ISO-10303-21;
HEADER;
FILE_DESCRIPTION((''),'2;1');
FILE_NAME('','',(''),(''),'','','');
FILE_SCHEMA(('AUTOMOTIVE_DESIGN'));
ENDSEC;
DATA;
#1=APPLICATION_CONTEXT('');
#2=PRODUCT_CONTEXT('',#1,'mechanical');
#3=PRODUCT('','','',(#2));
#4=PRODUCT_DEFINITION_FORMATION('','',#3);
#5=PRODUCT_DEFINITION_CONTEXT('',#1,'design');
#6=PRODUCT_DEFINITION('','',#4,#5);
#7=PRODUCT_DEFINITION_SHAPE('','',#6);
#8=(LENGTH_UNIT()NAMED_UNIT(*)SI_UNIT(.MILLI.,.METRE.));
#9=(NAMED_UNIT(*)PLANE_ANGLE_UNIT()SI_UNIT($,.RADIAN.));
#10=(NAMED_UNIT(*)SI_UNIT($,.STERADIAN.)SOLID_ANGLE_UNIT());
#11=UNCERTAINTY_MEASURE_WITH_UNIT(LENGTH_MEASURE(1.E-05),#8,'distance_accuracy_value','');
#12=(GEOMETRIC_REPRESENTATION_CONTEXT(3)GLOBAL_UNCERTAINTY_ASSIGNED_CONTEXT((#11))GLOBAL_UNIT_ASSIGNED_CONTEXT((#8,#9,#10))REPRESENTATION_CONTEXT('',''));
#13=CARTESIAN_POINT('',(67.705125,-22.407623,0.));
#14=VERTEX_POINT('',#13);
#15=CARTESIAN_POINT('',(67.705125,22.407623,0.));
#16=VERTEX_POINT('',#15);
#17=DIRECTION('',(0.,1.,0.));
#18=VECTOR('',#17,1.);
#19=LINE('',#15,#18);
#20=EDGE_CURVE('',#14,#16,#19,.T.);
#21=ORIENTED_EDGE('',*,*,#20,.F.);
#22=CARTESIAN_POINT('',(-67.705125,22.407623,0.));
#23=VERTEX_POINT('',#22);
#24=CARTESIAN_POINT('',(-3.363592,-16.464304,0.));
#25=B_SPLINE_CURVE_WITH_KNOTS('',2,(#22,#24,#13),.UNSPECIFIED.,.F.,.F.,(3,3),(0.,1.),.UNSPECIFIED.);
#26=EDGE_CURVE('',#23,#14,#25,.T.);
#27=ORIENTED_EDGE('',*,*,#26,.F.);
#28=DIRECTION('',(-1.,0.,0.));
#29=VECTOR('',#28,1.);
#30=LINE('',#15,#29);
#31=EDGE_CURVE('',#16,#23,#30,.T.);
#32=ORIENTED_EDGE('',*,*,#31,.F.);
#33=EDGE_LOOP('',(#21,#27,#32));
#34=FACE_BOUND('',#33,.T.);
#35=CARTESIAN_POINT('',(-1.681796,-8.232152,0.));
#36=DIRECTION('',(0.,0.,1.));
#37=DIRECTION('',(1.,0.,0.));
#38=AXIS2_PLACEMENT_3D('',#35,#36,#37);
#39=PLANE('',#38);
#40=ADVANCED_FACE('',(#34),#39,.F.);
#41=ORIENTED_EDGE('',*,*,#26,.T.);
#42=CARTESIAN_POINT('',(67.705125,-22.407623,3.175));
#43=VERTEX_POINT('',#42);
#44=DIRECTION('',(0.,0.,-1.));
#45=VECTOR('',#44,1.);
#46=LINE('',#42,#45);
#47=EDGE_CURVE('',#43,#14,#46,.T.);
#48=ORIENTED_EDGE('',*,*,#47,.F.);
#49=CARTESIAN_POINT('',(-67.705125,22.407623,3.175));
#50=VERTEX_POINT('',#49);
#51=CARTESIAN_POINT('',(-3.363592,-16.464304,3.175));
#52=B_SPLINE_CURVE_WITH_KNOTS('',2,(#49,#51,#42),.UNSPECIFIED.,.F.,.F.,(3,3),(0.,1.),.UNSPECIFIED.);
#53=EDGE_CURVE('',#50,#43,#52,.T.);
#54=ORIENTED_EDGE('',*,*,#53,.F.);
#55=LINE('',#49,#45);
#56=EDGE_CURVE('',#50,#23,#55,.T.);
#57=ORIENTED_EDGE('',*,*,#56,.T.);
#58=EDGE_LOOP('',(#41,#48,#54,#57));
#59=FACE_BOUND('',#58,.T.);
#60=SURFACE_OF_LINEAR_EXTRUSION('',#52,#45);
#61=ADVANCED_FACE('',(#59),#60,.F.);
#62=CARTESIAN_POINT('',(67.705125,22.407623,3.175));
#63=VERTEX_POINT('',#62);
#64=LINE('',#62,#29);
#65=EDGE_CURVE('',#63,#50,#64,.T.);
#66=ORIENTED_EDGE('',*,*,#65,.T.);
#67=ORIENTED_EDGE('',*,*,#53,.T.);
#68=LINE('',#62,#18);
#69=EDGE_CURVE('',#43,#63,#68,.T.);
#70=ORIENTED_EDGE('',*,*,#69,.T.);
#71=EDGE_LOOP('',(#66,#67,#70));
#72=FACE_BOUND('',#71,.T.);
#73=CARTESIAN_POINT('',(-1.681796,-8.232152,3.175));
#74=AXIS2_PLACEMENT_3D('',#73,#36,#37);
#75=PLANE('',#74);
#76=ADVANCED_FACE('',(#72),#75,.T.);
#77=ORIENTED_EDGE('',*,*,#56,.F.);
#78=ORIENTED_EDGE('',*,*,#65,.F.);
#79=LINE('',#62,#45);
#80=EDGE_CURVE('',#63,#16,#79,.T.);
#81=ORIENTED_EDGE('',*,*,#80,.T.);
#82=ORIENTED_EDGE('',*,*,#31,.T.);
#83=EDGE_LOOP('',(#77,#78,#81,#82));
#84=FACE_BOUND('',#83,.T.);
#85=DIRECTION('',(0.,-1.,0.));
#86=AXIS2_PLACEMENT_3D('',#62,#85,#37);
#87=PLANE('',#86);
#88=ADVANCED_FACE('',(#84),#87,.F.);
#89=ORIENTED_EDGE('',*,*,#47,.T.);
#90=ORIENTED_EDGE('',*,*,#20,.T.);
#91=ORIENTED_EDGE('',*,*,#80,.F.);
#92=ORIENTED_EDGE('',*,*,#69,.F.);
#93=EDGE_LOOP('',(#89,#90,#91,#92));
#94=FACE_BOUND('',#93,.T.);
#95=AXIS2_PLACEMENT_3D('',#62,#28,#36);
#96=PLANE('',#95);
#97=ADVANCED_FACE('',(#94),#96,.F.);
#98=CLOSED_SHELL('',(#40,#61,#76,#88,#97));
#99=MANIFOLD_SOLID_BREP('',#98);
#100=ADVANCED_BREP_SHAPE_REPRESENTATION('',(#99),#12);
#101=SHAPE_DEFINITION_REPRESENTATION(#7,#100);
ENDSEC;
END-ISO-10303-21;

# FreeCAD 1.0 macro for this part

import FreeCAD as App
import Part
import Sketcher
Q = App.Units.Quantity

doc = App.newDocument("Part")
body = doc.addObject("PartDesign::Body", "Body")

# Sketch on XY plane
sketch1 = body.newObject("Sketcher::SketchObject", "Sketch")
sketch1.AttachmentSupport = (doc.getObject("XY_Plane"), [""])
sketch1.MapMode = "FlatFace"
sketch1.addGeometry([
    Part.LineSegment(App.Vector(67.705125, 22.407623, 0), App.Vector(-67.705125, 22.407623, 0)),
    Part.BSplineCurve([App.Vector(67.705125, -22.407623, 0), App.Vector(-3.363592, -16.464304, 0), App.Vector(-67.705125, 22.407623, 0)], [3, 3], [0, 1], False, 2, [1, 1, 1], False),
    Part.LineSegment(App.Vector(67.705125, -22.407623, 0), App.Vector(67.705125, 22.407623, 0)),
], False)
sketch1.addConstraint([
    Sketcher.Constraint("Block", 1),
    Sketcher.Constraint("Coincident", 0, 2, 1, 2),
    Sketcher.Constraint("Coincident", 1, 1, 2, 1),
    Sketcher.Constraint("Coincident", 2, 2, 0, 1),
    Sketcher.Constraint("Horizontal", 0),
    Sketcher.Constraint("Vertical", 2),
])
pad1 = body.newObject("PartDesign::Pad", "Pad")
pad1.Profile = sketch1
pad1.Length = Q("0.125 in")

doc.recompute()
